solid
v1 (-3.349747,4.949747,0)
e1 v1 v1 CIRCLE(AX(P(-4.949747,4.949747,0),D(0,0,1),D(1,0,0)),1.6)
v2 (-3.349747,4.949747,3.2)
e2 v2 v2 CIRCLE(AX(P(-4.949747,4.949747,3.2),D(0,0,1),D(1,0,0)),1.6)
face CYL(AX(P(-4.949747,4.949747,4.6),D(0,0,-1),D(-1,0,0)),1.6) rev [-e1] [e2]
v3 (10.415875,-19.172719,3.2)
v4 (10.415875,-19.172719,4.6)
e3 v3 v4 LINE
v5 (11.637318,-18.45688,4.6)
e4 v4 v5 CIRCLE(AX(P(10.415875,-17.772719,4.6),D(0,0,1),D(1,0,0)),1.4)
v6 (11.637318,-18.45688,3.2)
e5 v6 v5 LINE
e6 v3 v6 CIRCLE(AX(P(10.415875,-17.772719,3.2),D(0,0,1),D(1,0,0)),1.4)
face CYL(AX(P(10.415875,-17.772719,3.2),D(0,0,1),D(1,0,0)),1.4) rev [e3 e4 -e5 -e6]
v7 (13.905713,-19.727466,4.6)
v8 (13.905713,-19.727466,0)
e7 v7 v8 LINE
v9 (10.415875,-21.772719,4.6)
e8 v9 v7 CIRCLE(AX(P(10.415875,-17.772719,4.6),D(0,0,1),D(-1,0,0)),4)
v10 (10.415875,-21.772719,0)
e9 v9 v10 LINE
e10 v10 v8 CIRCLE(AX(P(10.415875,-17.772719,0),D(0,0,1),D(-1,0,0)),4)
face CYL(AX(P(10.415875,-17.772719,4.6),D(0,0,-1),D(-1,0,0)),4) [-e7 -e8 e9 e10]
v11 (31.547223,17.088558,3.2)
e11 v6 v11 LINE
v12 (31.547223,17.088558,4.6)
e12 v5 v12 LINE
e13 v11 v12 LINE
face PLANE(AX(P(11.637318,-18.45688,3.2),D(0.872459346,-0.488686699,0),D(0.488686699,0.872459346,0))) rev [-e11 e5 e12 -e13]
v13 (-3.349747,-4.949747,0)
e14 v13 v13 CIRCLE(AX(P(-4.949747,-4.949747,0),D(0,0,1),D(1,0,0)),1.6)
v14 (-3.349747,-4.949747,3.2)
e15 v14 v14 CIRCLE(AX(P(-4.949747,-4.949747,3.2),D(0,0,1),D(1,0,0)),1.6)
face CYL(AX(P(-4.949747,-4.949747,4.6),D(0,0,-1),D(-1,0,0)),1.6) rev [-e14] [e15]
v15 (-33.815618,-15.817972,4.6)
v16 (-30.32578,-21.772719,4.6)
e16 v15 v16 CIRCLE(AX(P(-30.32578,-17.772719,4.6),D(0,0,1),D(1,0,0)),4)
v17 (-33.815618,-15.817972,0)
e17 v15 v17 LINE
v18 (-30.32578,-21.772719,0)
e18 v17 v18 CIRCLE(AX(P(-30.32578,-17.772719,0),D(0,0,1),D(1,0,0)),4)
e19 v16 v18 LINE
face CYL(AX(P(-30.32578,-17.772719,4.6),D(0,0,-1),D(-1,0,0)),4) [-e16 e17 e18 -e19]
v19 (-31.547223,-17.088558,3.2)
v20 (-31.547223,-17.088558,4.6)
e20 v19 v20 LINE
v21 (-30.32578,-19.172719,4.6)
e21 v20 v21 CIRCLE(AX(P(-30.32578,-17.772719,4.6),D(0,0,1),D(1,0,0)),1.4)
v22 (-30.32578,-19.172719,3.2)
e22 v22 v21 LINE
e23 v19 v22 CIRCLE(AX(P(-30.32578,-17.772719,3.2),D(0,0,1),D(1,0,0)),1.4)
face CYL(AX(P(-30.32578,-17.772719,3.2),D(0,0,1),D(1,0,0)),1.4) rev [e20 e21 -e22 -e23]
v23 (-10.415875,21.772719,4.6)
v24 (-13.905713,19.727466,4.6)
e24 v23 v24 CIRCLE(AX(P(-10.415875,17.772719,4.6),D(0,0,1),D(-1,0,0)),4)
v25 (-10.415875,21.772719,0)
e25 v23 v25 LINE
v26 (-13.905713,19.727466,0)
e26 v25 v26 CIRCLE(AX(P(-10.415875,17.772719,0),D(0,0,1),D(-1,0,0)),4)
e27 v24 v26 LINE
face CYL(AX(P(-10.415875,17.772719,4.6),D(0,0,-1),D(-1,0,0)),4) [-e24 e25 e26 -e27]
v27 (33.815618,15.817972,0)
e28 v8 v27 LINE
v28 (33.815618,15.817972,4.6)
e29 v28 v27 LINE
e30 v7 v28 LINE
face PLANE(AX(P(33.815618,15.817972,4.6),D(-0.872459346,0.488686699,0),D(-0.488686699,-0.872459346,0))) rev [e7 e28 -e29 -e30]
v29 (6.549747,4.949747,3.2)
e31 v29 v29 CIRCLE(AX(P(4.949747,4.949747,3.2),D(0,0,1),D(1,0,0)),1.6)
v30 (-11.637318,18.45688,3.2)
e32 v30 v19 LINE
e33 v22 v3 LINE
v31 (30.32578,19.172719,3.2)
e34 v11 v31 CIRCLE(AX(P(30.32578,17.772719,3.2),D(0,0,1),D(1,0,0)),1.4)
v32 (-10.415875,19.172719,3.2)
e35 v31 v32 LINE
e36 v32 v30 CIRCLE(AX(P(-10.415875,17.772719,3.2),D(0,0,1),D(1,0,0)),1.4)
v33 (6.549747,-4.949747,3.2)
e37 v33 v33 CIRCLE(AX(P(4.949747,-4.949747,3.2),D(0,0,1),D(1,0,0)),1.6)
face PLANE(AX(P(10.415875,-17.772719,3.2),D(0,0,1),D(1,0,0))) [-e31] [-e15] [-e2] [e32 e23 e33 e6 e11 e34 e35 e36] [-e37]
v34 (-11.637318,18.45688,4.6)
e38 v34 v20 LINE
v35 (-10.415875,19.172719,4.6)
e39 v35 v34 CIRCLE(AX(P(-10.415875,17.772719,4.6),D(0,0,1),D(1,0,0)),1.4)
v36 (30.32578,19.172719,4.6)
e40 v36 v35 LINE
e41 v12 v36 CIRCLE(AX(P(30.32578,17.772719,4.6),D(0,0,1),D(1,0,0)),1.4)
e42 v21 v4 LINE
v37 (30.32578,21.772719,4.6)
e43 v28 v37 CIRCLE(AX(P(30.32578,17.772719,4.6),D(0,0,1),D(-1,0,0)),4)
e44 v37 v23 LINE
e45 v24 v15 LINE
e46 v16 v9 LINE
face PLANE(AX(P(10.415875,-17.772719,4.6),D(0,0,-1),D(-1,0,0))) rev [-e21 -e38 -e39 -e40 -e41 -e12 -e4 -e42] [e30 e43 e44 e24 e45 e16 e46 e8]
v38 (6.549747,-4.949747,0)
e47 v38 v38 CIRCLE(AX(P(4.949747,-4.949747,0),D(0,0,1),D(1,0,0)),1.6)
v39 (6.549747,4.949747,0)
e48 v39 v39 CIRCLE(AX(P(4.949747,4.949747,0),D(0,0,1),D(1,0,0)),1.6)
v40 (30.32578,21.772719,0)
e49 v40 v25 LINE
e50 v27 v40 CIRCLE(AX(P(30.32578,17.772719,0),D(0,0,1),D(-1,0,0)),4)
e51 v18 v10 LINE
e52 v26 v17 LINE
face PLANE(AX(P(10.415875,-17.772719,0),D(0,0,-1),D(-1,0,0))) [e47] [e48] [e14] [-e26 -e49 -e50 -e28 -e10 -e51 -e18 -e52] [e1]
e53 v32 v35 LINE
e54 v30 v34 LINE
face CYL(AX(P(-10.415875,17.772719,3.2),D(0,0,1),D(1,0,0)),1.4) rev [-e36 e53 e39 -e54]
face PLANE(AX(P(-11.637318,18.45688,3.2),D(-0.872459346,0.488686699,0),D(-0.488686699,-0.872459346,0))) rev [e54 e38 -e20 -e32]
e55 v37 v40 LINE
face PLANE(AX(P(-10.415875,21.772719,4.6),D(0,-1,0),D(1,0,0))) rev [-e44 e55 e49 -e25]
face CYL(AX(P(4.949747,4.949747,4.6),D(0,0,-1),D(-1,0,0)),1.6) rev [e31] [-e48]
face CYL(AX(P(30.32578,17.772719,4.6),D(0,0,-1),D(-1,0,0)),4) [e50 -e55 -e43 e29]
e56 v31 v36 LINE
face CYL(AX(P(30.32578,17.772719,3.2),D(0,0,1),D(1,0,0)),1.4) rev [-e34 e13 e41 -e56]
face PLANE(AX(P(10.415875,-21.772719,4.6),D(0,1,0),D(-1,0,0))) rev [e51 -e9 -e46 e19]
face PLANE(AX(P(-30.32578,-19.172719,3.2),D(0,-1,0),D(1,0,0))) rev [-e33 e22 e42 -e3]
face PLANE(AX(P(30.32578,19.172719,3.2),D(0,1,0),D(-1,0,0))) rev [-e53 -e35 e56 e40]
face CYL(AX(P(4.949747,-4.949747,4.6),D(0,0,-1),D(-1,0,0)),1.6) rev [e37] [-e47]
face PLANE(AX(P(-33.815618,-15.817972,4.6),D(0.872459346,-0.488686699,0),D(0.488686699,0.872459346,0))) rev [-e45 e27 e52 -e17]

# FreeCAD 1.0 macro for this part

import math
import FreeCAD as App
import Part
import Sketcher

doc = App.newDocument("Part")
body = doc.addObject("PartDesign::Body", "Body")

# Sketch on XY plane
sketch1 = body.newObject("Sketcher::SketchObject", "Sketch")
sketch1.AttachmentSupport = (doc.getObject("XY_Plane"), [""])
sketch1.MapMode = "FlatFace"
sketch1.addGeometry([
    Part.LineSegment(App.Vector(-13.9, 19.7, 0), App.Vector(-33.8, -15.8, 0)),  # 0
    Part.ArcOfCircle(Part.Circle(App.Vector(-30.3, -17.8, 0), App.Vector(0, 0, 1), 4), math.radians(151), math.radians(270)),  # 1
    Part.LineSegment(App.Vector(-30.3, -21.8, 0), App.Vector(10.4, -21.8, 0)),  # 2
    Part.ArcOfCircle(Part.Circle(App.Vector(10.4, -17.8, 0), App.Vector(0, 0, 1), 4), math.radians(-90), math.radians(-29)),  # 3
    Part.LineSegment(App.Vector(13.9, -19.7, 0), App.Vector(33.8, 15.8, 0)),  # 4
    Part.ArcOfCircle(Part.Circle(App.Vector(30.3, 17.8, 0), App.Vector(0, 0, 1), 4), math.radians(-29), math.radians(90)),  # 5
    Part.LineSegment(App.Vector(30.3, 21.8, 0), App.Vector(-10.4, 21.8, 0)),  # 6
    Part.ArcOfCircle(Part.Circle(App.Vector(-10.4, 17.8, 0), App.Vector(0, 0, 1), 4), math.radians(90), math.radians(151)),  # 7
    Part.Circle(App.Vector(4.9, -4.9, 0), App.Vector(0, 0, 1), 1.6),  # 8
    Part.Circle(App.Vector(-4.9, -4.9, 0), App.Vector(0, 0, 1), 1.6),  # 9
    Part.Circle(App.Vector(4.9, 4.9, 0), App.Vector(0, 0, 1), 1.6),  # 10
    Part.Circle(App.Vector(-4.9, 4.9, 0), App.Vector(0, 0, 1), 1.6),  # 11
], False)
sketch1.addConstraint([
    Sketcher.Constraint("Tangent", 0, 2, 1, 1),
    Sketcher.Constraint("Tangent", 1, 2, 2, 1),
    Sketcher.Constraint("Tangent", 2, 2, 3, 1),
    Sketcher.Constraint("Tangent", 3, 2, 4, 1),
    Sketcher.Constraint("Tangent", 4, 2, 5, 1),
    Sketcher.Constraint("Tangent", 5, 2, 6, 1),
    Sketcher.Constraint("Tangent", 6, 2, 7, 1),
    Sketcher.Constraint("Tangent", 7, 2, 0, 1),
    Sketcher.Constraint("Horizontal", 2),
    Sketcher.Constraint("Horizontal", 6),
    Sketcher.Constraint("Equal", 1, 3),
    Sketcher.Constraint("Equal", 3, 5),
    Sketcher.Constraint("Equal", 5, 7),
    Sketcher.Constraint("Equal", 8, 9),
    Sketcher.Constraint("Equal", 9, 10),
    Sketcher.Constraint("Equal", 10, 11),
    Sketcher.Constraint("Symmetric", 1, 3, 5, 3, -1, 1),
    Sketcher.Constraint("Symmetric", 9, 3, 10, 3, -1, 1),
    Sketcher.Constraint("Symmetric", 8, 3, 11, 3, -1, 1),
    Sketcher.Constraint("Symmetric", 8, 3, 9, 3, -2),
    Sketcher.Constraint("Parallel", 0, 4),
    Sketcher.Constraint("Radius", 1, 4.0),
    Sketcher.Constraint("Diameter", 8, 3.2),
    Sketcher.Constraint("DistanceX", 2, 1, 2, 2, 40.741656),
    Sketcher.Constraint("DistanceX", 1, 3, -1, 1, 30.32578),
    Sketcher.Constraint("DistanceY", 1, 3, -1, 1, 17.772719),
    Sketcher.Constraint("DistanceY", 3, 3, 8, 3, 12.822972),
    Sketcher.Constraint("DistanceX", 0, 2, 9, 3, 28.86587),
])
pad1 = body.newObject("PartDesign::Pad", "Pad")
pad1.Profile = sketch1
pad1.Length = 4.6

# Sketch on XY plane
sketch2 = body.newObject("Sketcher::SketchObject", "Sketch001")
sketch2.AttachmentSupport = (doc.getObject("XY_Plane"), [""])
sketch2.MapMode = "FlatFace"
sketch2.AttachmentOffset = App.Placement(App.Vector(0, 0, 4.6), App.Rotation())
sketch2.addGeometry([
    Part.LineSegment(App.Vector(11.6, -18.5, 0), App.Vector(31.5, 17.1, 0)),  # 0
    Part.ArcOfCircle(Part.Circle(App.Vector(30.3, 17.8, 0), App.Vector(0, 0, 1), 1.4), math.radians(-29), math.radians(90)),  # 1
    Part.LineSegment(App.Vector(30.3, 19.2, 0), App.Vector(-10.4, 19.2, 0)),  # 2
    Part.ArcOfCircle(Part.Circle(App.Vector(-10.4, 17.8, 0), App.Vector(0, 0, 1), 1.4), math.radians(90), math.radians(151)),  # 3
    Part.LineSegment(App.Vector(-11.6, 18.5, 0), App.Vector(-31.5, -17.1, 0)),  # 4
    Part.ArcOfCircle(Part.Circle(App.Vector(-30.3, -17.8, 0), App.Vector(0, 0, 1), 1.4), math.radians(151), math.radians(270)),  # 5
    Part.LineSegment(App.Vector(-30.3, -19.2, 0), App.Vector(10.4, -19.2, 0)),  # 6
    Part.ArcOfCircle(Part.Circle(App.Vector(10.4, -17.8, 0), App.Vector(0, 0, 1), 1.4), math.radians(-90), math.radians(-29)),  # 7
], False)
sketch2.addConstraint([
    Sketcher.Constraint("Tangent", 0, 2, 1, 1),
    Sketcher.Constraint("Tangent", 1, 2, 2, 1),
    Sketcher.Constraint("Tangent", 2, 2, 3, 1),
    Sketcher.Constraint("Tangent", 3, 2, 4, 1),
    Sketcher.Constraint("Tangent", 4, 2, 5, 1),
    Sketcher.Constraint("Tangent", 5, 2, 6, 1),
    Sketcher.Constraint("Tangent", 6, 2, 7, 1),
    Sketcher.Constraint("Tangent", 7, 2, 0, 1),
    Sketcher.Constraint("Horizontal", 2),
    Sketcher.Constraint("Horizontal", 6),
    Sketcher.Constraint("Equal", 1, 3),
    Sketcher.Constraint("Equal", 3, 5),
    Sketcher.Constraint("Equal", 5, 7),
    Sketcher.Constraint("Symmetric", 1, 3, 5, 3, -1, 1),
    Sketcher.Constraint("Parallel", 0, 4),
    Sketcher.Constraint("Radius", 1, 1.4),
    Sketcher.Constraint("DistanceX", 3, 3, 0, 2, 41.963099),
    Sketcher.Constraint("DistanceY", 5, 3, 3, 2, 36.2296),
    Sketcher.Constraint("DistanceX", 2, 2, 2, 1, 40.741656),
])
pocket1 = body.newObject("PartDesign::Pocket", "Pocket")
pocket1.Profile = sketch2
pocket1.Length = 1.4

doc.recompute()
